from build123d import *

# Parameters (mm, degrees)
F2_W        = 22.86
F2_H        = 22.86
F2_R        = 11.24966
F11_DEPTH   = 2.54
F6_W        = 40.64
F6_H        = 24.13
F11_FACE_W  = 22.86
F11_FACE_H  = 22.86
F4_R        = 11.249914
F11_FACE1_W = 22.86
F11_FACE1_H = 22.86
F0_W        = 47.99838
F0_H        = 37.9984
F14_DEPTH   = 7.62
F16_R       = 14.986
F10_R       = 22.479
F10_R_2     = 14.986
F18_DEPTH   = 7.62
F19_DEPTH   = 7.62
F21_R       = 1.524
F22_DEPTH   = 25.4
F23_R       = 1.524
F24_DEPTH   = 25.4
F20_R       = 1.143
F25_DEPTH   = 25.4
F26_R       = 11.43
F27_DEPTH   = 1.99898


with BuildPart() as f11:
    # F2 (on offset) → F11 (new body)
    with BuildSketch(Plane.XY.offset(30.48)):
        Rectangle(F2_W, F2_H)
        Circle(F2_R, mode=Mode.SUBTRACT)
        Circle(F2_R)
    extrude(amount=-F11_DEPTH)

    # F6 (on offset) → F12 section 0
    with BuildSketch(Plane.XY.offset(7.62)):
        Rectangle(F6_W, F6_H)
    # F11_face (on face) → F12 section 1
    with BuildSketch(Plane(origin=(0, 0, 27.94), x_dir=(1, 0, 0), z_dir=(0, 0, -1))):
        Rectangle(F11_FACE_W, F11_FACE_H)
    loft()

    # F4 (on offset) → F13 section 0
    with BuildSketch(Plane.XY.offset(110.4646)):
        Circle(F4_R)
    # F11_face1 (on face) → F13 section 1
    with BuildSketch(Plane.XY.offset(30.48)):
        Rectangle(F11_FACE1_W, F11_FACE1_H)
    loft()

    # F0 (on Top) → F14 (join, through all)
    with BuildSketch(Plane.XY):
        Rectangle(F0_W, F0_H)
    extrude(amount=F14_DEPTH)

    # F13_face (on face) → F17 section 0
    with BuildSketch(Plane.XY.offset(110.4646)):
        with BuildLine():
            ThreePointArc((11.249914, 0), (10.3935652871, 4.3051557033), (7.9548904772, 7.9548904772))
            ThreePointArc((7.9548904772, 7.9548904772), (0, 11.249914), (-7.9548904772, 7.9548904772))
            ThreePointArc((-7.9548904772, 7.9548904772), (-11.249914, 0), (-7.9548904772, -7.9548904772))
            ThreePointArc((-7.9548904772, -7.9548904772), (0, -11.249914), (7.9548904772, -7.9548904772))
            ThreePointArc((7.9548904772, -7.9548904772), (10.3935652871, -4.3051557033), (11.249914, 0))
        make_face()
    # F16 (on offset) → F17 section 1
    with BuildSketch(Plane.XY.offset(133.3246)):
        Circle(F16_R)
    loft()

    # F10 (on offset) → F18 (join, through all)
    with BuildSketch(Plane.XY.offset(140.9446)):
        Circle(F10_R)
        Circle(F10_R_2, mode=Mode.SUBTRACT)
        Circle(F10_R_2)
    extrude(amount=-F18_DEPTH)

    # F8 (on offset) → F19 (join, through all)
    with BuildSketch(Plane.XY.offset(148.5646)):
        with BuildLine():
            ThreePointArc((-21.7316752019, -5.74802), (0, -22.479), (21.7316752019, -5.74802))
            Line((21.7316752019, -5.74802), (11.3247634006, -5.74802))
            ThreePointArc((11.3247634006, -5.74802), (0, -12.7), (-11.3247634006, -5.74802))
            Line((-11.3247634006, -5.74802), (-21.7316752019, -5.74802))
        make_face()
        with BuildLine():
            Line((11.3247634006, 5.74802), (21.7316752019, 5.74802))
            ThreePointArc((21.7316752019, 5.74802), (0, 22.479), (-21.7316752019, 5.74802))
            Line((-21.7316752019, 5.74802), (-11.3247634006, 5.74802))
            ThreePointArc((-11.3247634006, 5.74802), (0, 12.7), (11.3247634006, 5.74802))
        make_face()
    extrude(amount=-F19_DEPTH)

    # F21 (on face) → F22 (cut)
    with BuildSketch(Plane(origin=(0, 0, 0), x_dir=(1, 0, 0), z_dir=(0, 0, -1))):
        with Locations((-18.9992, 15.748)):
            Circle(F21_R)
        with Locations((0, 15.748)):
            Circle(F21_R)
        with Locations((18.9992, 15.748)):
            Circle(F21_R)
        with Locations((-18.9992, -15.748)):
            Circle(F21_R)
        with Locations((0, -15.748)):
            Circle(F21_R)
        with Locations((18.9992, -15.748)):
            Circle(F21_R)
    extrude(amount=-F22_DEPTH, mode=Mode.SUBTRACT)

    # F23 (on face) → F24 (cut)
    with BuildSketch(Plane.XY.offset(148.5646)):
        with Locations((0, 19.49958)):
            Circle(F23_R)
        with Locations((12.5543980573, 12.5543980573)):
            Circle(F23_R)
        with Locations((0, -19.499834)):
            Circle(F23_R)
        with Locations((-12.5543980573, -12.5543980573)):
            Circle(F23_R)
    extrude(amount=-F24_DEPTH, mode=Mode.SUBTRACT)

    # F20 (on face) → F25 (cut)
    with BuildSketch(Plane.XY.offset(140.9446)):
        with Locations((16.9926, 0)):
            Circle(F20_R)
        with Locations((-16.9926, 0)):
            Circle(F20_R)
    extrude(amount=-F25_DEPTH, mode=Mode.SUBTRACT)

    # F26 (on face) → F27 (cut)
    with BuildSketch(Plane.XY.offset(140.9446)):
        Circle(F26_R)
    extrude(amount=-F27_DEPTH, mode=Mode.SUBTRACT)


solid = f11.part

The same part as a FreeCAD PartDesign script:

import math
import FreeCAD as App
import Part
import Sketcher
from FreeCAD import Vector
Q = App.Units.Quantity


def add_polygon(sketch, points):
    """Adds a closed chain of lines whose ends are joined by coincident constraints."""
    first, n = sketch.GeometryCount, len(points)
    for a, b in zip(points, points[1:] + points[:1]):
        sketch.addGeometry(Part.LineSegment(App.Vector(*a, 0), App.Vector(*b, 0)), False)
    for i in range(n):
        sketch.addConstraint(Sketcher.Constraint("Coincident", first + i, 2, first + (i + 1) % n, 1))

doc = App.newDocument("Part")
body = doc.addObject("PartDesign::Body", "Body")

# Sketch on XY plane
sketch1 = body.newObject("Sketcher::SketchObject", "Sketch")
sketch1.AttachmentSupport = (doc.getObject("XY_Plane"), [""])
sketch1.MapMode = "FlatFace"
sketch1.AttachmentOffset = App.Placement(Vector(0, 0, 1.2 * 25.4), App.Rotation())
add_polygon(sketch1, [(-11.43, 11.43), (-11.43, -11.43), (11.43, -11.43), (11.43, 11.43)])  # lines 0-3
sketch1.addConstraint([
    Sketcher.Constraint("Vertical", 0),
    Sketcher.Constraint("Horizontal", 1),
    Sketcher.Constraint("Vertical", 2),
    Sketcher.Constraint("Horizontal", 3),
    Sketcher.Constraint("Symmetric", 0, 2, 2, 2, -1, 1),
    Sketcher.Constraint("Equal", 3, 0),
    Sketcher.Constraint("DistanceX", 1, 1, 1, 2, Q("0.9 in")),
])
pad1 = body.newObject("PartDesign::Pad", "Pad")
pad1.Profile = sketch1
pad1.Length = Q("0.1 in")
pad1.Reversed = True

# Sketch on XY plane
sketch2 = body.newObject("Sketcher::SketchObject", "Sketch001")
sketch2.AttachmentSupport = (doc.getObject("XY_Plane"), [""])
sketch2.MapMode = "FlatFace"
sketch2.AttachmentOffset = App.Placement(Vector(0, 0, 0.3 * 25.4), App.Rotation())
add_polygon(sketch2, [(-20.32, 12.065), (-20.32, -12.065), (20.32, -12.065), (20.32, 12.065)])  # lines 0-3
sketch2.addConstraint([
    Sketcher.Constraint("Vertical", 0),
    Sketcher.Constraint("Horizontal", 1),
    Sketcher.Constraint("Vertical", 2),
    Sketcher.Constraint("Horizontal", 3),
    Sketcher.Constraint("Symmetric", 0, 2, 2, 2, -1, 1),
    Sketcher.Constraint("DistanceX", 1, 1, 1, 2, Q("1.6 in")),
    Sketcher.Constraint("DistanceY", 0, 2, 0, 1, Q("0.95 in")),
])

# Sketch on XY plane
sketch3 = body.newObject("Sketcher::SketchObject", "Sketch002")
sketch3.AttachmentSupport = (doc.getObject("XY_Plane"), [""])
sketch3.MapMode = "FlatFace"
sketch3.AttachmentOffset = App.Placement(Vector(0, 0, 1.1 * 25.4), App.Rotation())
add_polygon(sketch3, [(-11.43, -11.43), (-11.43, 11.43), (11.43, 11.43), (11.43, -11.43)])  # lines 0-3
sketch3.addConstraint([
    Sketcher.Constraint("Vertical", 0),
    Sketcher.Constraint("Horizontal", 1),
    Sketcher.Constraint("Vertical", 2),
    Sketcher.Constraint("Horizontal", 3),
    Sketcher.Constraint("Symmetric", 0, 2, 2, 2, -1, 1),
    Sketcher.Constraint("Equal", 3, 0),
    Sketcher.Constraint("DistanceX", 1, 1, 1, 2, Q("0.9 in")),
])

additiveloft = body.newObject("PartDesign::AdditiveLoft", "AdditiveLoft")
additiveloft.Profile = sketch2
additiveloft.Sections = [sketch3]

# Sketch on XY plane
sketch4 = body.newObject("Sketcher::SketchObject", "Sketch003")
sketch4.AttachmentSupport = (doc.getObject("XY_Plane"), [""])
sketch4.MapMode = "FlatFace"
sketch4.AttachmentOffset = App.Placement(Vector(0, 0, 4.349 * 25.4), App.Rotation())
sketch4.addGeometry(Part.Circle(Vector(0, 0, 0), Vector(0, 0, 1), 11.249914), False)
sketch4.addConstraint([
    Sketcher.Constraint("Coincident", 0, 3, -1, 1),
    Sketcher.Constraint("Diameter", 0, 22.499828),
])

# Sketch on XY plane
sketch5 = body.newObject("Sketcher::SketchObject", "Sketch004")
sketch5.AttachmentSupport = (doc.getObject("XY_Plane"), [""])
sketch5.MapMode = "FlatFace"
sketch5.AttachmentOffset = App.Placement(Vector(0, 0, 1.2 * 25.4), App.Rotation())
add_polygon(sketch5, [(-11.43, 11.43), (-11.43, -11.43), (11.43, -11.43), (11.43, 11.43)])  # lines 0-3
sketch5.addConstraint([
    Sketcher.Constraint("Vertical", 0),
    Sketcher.Constraint("Horizontal", 1),
    Sketcher.Constraint("Vertical", 2),
    Sketcher.Constraint("Horizontal", 3),
    Sketcher.Constraint("Symmetric", 0, 2, 2, 2, -1, 1),
    Sketcher.Constraint("Equal", 3, 0),
    Sketcher.Constraint("DistanceX", 1, 1, 1, 2, Q("0.9 in")),
])

additiveloft2 = body.newObject("PartDesign::AdditiveLoft", "AdditiveLoft001")
additiveloft2.Profile = sketch4
additiveloft2.Sections = [sketch5]

# Sketch on XY plane
sketch6 = body.newObject("Sketcher::SketchObject", "Sketch005")
sketch6.AttachmentSupport = (doc.getObject("XY_Plane"), [""])
sketch6.MapMode = "FlatFace"
add_polygon(sketch6, [(-23.99919, 18.9992), (-23.99919, -18.9992), (23.99919, -18.9992), (23.99919, 18.9992)])  # lines 0-3
sketch6.addConstraint([
    Sketcher.Constraint("Vertical", 0),
    Sketcher.Constraint("Horizontal", 1),
    Sketcher.Constraint("Vertical", 2),
    Sketcher.Constraint("Horizontal", 3),
    Sketcher.Constraint("Symmetric", 0, 2, 2, 2, -1, 1),
    Sketcher.Constraint("DistanceY", 0, 2, 0, 1, Q("1.496 in")),
    Sketcher.Constraint("DistanceX", 1, 1, 1, 2, Q("1.8897 in")),
])
pad2 = body.newObject("PartDesign::Pad", "Pad001")
pad2.Profile = sketch6
pad2.Length = Q("0.3 in")

# Sketch on XY plane
sketch7 = body.newObject("Sketcher::SketchObject", "Sketch006")
sketch7.AttachmentSupport = (doc.getObject("XY_Plane"), [""])
sketch7.MapMode = "FlatFace"
sketch7.AttachmentOffset = App.Placement(Vector(0, 0, 4.349 * 25.4), App.Rotation())
sketch7.addGeometry([
    Part.ArcOfCircle(Part.Circle(Vector(0, 0, 0), Vector(0, 0, 1), 11.249914), math.radians(0), math.radians(45)),  # 0
    Part.ArcOfCircle(Part.Circle(Vector(0, 0, 0), Vector(0, 0, 1), 11.249914), math.radians(45), math.radians(135)),  # 1
    Part.ArcOfCircle(Part.Circle(Vector(0, 0, 0), Vector(0, 0, 1), 11.249914), math.radians(135), math.radians(225)),  # 2
    Part.ArcOfCircle(Part.Circle(Vector(0, 0, 0), Vector(0, 0, 1), 11.249914), math.radians(-135), math.radians(-45)),  # 3
    Part.ArcOfCircle(Part.Circle(Vector(0, 0, 0), Vector(0, 0, 1), 11.249914), math.radians(-45), math.radians(0)),  # 4
], False)
sketch7.addConstraint([
    Sketcher.Constraint("Tangent", 0, 2, 1, 1),
    Sketcher.Constraint("Tangent", 1, 2, 2, 1),
    Sketcher.Constraint("Tangent", 2, 2, 3, 1),
    Sketcher.Constraint("Tangent", 3, 2, 4, 1),
    Sketcher.Constraint("Tangent", 4, 2, 0, 1),
    Sketcher.Constraint("Coincident", 0, 3, -1, 1),
    Sketcher.Constraint("Coincident", 2, 3, -1, 1),
    Sketcher.Constraint("PointOnObject", 4, 2, -1),
    Sketcher.Constraint("Horizontal", 0, 2, 1, 2),
    Sketcher.Constraint("Horizontal", 2, 2, 3, 2),
    Sketcher.Constraint("Vertical", 1, 2, 2, 2),
    Sketcher.Constraint("Radius", 0, 11.249914),
    Sketcher.Constraint("DistanceX", -1, 1, 0, 2, 7.95489),
])

# Sketch on XY plane
sketch8 = body.newObject("Sketcher::SketchObject", "Sketch007")
sketch8.AttachmentSupport = (doc.getObject("XY_Plane"), [""])
sketch8.MapMode = "FlatFace"
sketch8.AttachmentOffset = App.Placement(Vector(0, 0, 5.249 * 25.4), App.Rotation())
sketch8.addGeometry(Part.Circle(Vector(0, 0, 0), Vector(0, 0, 1), 14.986), False)
sketch8.addConstraint([
    Sketcher.Constraint("Coincident", 0, 3, -1, 1),
    Sketcher.Constraint("Diameter", 0, Q("1.18 in")),
])

additiveloft3 = body.newObject("PartDesign::AdditiveLoft", "AdditiveLoft002")
additiveloft3.Profile = sketch7
additiveloft3.Sections = [sketch8]

# Sketch on XY plane
sketch9 = body.newObject("Sketcher::SketchObject", "Sketch008")
sketch9.AttachmentSupport = (doc.getObject("XY_Plane"), [""])
sketch9.MapMode = "FlatFace"
sketch9.AttachmentOffset = App.Placement(Vector(0, 0, 5.549 * 25.4), App.Rotation())
sketch9.addGeometry(Part.Circle(Vector(0, 0, 0), Vector(0, 0, 1), 22.479), False)
sketch9.addConstraint([
    Sketcher.Constraint("Coincident", 0, 3, -1, 1),
    Sketcher.Constraint("Diameter", 0, Q("1.77 in")),
])
pad3 = body.newObject("PartDesign::Pad", "Pad002")
pad3.Profile = sketch9
pad3.Length = Q("0.3 in")
pad3.Reversed = True

# Sketch on XY plane
sketch10 = body.newObject("Sketcher::SketchObject", "Sketch009")
sketch10.AttachmentSupport = (doc.getObject("XY_Plane"), [""])
sketch10.MapMode = "FlatFace"
sketch10.AttachmentOffset = App.Placement(Vector(0, 0, 5.849 * 25.4), App.Rotation())
sketch10.addGeometry([
    Part.ArcOfCircle(Part.Circle(Vector(0, 0, 0), Vector(0, 0, 1), 22.479), math.radians(-165.184564), math.radians(-14.815436)),  # 0
    Part.LineSegment(Vector(21.731675, -5.74802, 0), Vector(11.324763, -5.74802, 0)),  # 1
    Part.ArcOfCircle(Part.Circle(Vector(0, 0, 0), Vector(0, 0, 1), 12.7), math.radians(-153.08938), math.radians(-26.91062)),  # 2
    Part.LineSegment(Vector(-11.324763, -5.74802, 0), Vector(-21.731675, -5.74802, 0)),  # 3
    Part.LineSegment(Vector(11.324763, 5.74802, 0), Vector(21.731675, 5.74802, 0)),  # 4
    Part.ArcOfCircle(Part.Circle(Vector(0, 0, 0), Vector(0, 0, 1), 22.479), math.radians(14.815436), math.radians(165.184564)),  # 5
    Part.LineSegment(Vector(-21.731675, 5.74802, 0), Vector(-11.324763, 5.74802, 0)),  # 6
    Part.ArcOfCircle(Part.Circle(Vector(0, 0, 0), Vector(0, 0, 1), 12.7), math.radians(26.91062), math.radians(153.08938)),  # 7
], False)
sketch10.addConstraint([
    Sketcher.Constraint("Coincident", 0, 2, 1, 1),
    Sketcher.Constraint("Coincident", 1, 2, 2, 2),
    Sketcher.Constraint("Coincident", 2, 1, 3, 1),
    Sketcher.Constraint("Coincident", 3, 2, 0, 1),
    Sketcher.Constraint("Coincident", 4, 2, 5, 1),
    Sketcher.Constraint("Coincident", 5, 2, 6, 1),
    Sketcher.Constraint("Coincident", 6, 2, 7, 2),
    Sketcher.Constraint("Coincident", 7, 1, 4, 1),
    Sketcher.Constraint("Horizontal", 1),
    Sketcher.Constraint("Horizontal", 3),
    Sketcher.Constraint("Horizontal", 4),
    Sketcher.Constraint("Horizontal", 6),
    Sketcher.Constraint("Coincident", 0, 3, -1, 1),
    Sketcher.Constraint("Coincident", 2, 3, -1, 1),
    Sketcher.Constraint("Coincident", 5, 3, -1, 1),
    Sketcher.Constraint("Coincident", 7, 3, -1, 1),
    Sketcher.Constraint("Equal", 0, 5),
    Sketcher.Constraint("Equal", 2, 7),
    Sketcher.Constraint("Horizontal", 1, 2, 2, 1),
    Sketcher.Constraint("Horizontal", 4, 2, 5, 2),
    Sketcher.Constraint("Vertical", 0, 2, 4, 2),
    Sketcher.Constraint("Radius", 2, Q("0.5 in")),
    Sketcher.Constraint("Radius", 0, Q("0.885 in")),
    Sketcher.Constraint("DistanceY", 0, 2, -1, 1, Q("0.2263 in")),
])
pad4 = body.newObject("PartDesign::Pad", "Pad003")
pad4.Profile = sketch10
pad4.Length = Q("0.3 in")
pad4.Reversed = True

# Sketch on XY plane
sketch11 = body.newObject("Sketcher::SketchObject", "Sketch010")
sketch11.AttachmentSupport = (doc.getObject("XY_Plane"), [""])
sketch11.MapMode = "FlatFace"
sketch11.addGeometry([
    Part.Circle(Vector(-18.9992, -15.748, 0), Vector(0, 0, 1), 1.524),  # 0
    Part.Circle(Vector(0, -15.748, 0), Vector(0, 0, 1), 1.524),  # 1
    Part.Circle(Vector(18.9992, -15.748, 0), Vector(0, 0, 1), 1.524),  # 2
    Part.Circle(Vector(-18.9992, 15.748, 0), Vector(0, 0, 1), 1.524),  # 3
    Part.Circle(Vector(0, 15.748, 0), Vector(0, 0, 1), 1.524),  # 4
    Part.Circle(Vector(18.9992, 15.748, 0), Vector(0, 0, 1), 1.524),  # 5
], False)
sketch11.addConstraint([
    Sketcher.Constraint("Equal", 0, 1),
    Sketcher.Constraint("Equal", 1, 2),
    Sketcher.Constraint("Equal", 2, 3),
    Sketcher.Constraint("Equal", 3, 4),
    Sketcher.Constraint("Equal", 4, 5),
    Sketcher.Constraint("Symmetric", 2, 3, 3, 3, -1, 1),
    Sketcher.Constraint("Symmetric", 1, 3, 4, 3, -1, 1),
    Sketcher.Constraint("Symmetric", 0, 3, 5, 3, -1, 1),
    Sketcher.Constraint("Symmetric", 0, 3, 2, 3, -2),
    Sketcher.Constraint("PointOnObject", 1, 3, -2),
    Sketcher.Constraint("Horizontal", 0, 3, 1, 3),
    Sketcher.Constraint("Diameter", 0, Q("0.12 in")),
    Sketcher.Constraint("DistanceY", 0, 3, -1, 1, Q("0.62 in")),
    Sketcher.Constraint("DistanceX", 0, 3, -1, 1, Q("0.748 in")),
])
pocket1 = body.newObject("PartDesign::Pocket", "Pocket")
pocket1.Profile = sketch11
pocket1.Length = Q("1 in")
pocket1.Reversed = True

# Sketch on XY plane
sketch12 = body.newObject("Sketcher::SketchObject", "Sketch011")
sketch12.AttachmentSupport = (doc.getObject("XY_Plane"), [""])
sketch12.MapMode = "FlatFace"
sketch12.AttachmentOffset = App.Placement(Vector(0, 0, 5.849 * 25.4), App.Rotation())
sketch12.addGeometry([
    Part.Circle(Vector(0, 19.49958, 0), Vector(0, 0, 1), 1.524),
    Part.Circle(Vector(12.554398, 12.554398, 0), Vector(0, 0, 1), 1.524),
    Part.Circle(Vector(0, -19.499834, 0), Vector(0, 0, 1), 1.524),
    Part.Circle(Vector(-12.554398, -12.554398, 0), Vector(0, 0, 1), 1.524),
], False)
sketch12.addConstraint([
    Sketcher.Constraint("Equal", 0, 1),
    Sketcher.Constraint("Equal", 1, 2),
    Sketcher.Constraint("Equal", 2, 3),
    Sketcher.Constraint("Symmetric", 1, 3, 3, 3, -1, 1),
    Sketcher.Constraint("PointOnObject", 0, 3, -2),
    Sketcher.Constraint("PointOnObject", 2, 3, -2),
    Sketcher.Constraint("Diameter", 0, Q("0.12 in")),
    Sketcher.Constraint("DistanceY", -1, 1, 0, 3, Q("0.7677 in")),
    Sketcher.Constraint("DistanceX", -1, 1, 1, 3, 12.554398),
    Sketcher.Constraint("DistanceY", -1, 1, 1, 3, 12.554398),
    Sketcher.Constraint("DistanceY", 2, 3, -1, 1, 19.499834),
])
pocket2 = body.newObject("PartDesign::Pocket", "Pocket001")
pocket2.Profile = sketch12
pocket2.Length = Q("1 in")

# Sketch on XY plane
sketch13 = body.newObject("Sketcher::SketchObject", "Sketch012")
sketch13.AttachmentSupport = (doc.getObject("XY_Plane"), [""])
sketch13.MapMode = "FlatFace"
sketch13.AttachmentOffset = App.Placement(Vector(0, 0, 5.549 * 25.4), App.Rotation())
sketch13.addGeometry([
    Part.Circle(Vector(16.9926, 0, 0), Vector(0, 0, 1), 1.143),
    Part.Circle(Vector(-16.9926, 0, 0), Vector(0, 0, 1), 1.143),
], False)
sketch13.addConstraint([
    Sketcher.Constraint("Equal", 0, 1),
    Sketcher.Constraint("Symmetric", 0, 3, 1, 3, -1, 1),
    Sketcher.Constraint("PointOnObject", 0, 3, -1),
    Sketcher.Constraint("Diameter", 0, Q("0.09 in")),
    Sketcher.Constraint("DistanceX", -1, 1, 0, 3, Q("0.669 in")),
])
pocket3 = body.newObject("PartDesign::Pocket", "Pocket002")
pocket3.Profile = sketch13
pocket3.Length = Q("1 in")

# Sketch on XY plane
sketch14 = body.newObject("Sketcher::SketchObject", "Sketch013")
sketch14.AttachmentSupport = (doc.getObject("XY_Plane"), [""])
sketch14.MapMode = "FlatFace"
sketch14.AttachmentOffset = App.Placement(Vector(0, 0, 5.549 * 25.4), App.Rotation())
sketch14.addGeometry(Part.Circle(Vector(0, 0, 0), Vector(0, 0, 1), 11.43), False)
sketch14.addConstraint([
    Sketcher.Constraint("Coincident", 0, 3, -1, 1),
    Sketcher.Constraint("Diameter", 0, Q("0.9 in")),
])
pocket4 = body.newObject("PartDesign::Pocket", "Pocket003")
pocket4.Profile = sketch14
pocket4.Length = Q("0.0787 in")

doc.recompute()
